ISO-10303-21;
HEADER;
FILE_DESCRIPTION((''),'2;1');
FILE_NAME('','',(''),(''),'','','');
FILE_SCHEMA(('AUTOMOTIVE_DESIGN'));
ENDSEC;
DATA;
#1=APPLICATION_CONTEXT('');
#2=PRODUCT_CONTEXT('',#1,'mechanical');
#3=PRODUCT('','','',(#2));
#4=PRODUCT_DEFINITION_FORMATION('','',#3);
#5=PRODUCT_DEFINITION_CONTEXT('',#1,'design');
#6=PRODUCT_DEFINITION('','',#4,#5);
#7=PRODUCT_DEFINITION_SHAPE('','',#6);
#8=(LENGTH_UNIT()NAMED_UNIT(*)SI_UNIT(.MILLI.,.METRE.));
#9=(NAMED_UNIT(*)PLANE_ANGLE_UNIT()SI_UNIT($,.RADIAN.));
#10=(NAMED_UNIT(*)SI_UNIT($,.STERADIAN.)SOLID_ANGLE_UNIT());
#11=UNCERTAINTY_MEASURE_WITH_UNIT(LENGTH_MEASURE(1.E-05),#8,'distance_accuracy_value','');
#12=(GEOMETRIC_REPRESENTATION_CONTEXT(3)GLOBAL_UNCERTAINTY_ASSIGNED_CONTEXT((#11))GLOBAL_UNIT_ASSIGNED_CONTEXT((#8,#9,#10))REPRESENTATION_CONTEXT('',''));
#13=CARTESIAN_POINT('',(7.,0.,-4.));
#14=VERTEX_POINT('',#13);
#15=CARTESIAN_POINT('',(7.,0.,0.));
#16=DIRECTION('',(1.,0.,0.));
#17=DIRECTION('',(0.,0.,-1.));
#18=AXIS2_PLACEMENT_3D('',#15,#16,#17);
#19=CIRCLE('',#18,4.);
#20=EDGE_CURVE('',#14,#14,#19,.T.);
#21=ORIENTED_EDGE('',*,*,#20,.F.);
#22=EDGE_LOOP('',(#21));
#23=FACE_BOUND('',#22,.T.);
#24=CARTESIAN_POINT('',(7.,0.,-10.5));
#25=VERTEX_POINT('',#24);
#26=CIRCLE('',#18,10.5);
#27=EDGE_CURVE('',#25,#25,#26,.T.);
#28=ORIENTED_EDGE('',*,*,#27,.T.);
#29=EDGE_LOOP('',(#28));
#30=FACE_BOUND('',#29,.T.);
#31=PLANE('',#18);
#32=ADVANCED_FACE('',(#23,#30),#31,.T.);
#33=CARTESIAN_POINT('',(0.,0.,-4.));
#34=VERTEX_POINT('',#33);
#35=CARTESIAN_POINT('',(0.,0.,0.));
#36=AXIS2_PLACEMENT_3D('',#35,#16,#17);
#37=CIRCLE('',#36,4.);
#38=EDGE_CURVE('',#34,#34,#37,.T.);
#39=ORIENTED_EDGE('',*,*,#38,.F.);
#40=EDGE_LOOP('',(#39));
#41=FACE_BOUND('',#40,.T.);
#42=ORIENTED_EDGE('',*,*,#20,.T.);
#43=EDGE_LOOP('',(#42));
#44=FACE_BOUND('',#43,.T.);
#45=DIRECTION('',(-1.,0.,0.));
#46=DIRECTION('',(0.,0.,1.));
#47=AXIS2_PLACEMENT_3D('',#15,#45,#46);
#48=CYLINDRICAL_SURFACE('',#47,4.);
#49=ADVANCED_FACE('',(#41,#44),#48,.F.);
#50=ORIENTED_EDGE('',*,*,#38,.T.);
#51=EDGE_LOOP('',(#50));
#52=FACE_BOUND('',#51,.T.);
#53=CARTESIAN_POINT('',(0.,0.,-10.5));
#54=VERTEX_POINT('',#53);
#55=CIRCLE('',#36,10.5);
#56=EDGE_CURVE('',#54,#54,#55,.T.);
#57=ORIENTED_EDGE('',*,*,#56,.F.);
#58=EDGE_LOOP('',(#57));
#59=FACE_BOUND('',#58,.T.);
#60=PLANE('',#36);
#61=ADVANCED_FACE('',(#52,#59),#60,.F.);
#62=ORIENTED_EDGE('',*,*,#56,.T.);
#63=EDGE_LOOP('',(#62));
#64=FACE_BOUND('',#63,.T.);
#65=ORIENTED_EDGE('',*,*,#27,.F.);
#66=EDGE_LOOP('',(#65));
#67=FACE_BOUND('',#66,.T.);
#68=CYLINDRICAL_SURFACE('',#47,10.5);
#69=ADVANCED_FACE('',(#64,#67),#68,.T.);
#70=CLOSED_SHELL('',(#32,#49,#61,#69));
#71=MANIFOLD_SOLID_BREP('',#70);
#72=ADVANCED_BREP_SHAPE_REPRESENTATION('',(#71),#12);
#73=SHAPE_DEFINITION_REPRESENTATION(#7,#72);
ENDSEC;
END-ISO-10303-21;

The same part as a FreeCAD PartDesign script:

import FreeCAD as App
import Part
import Sketcher
from FreeCAD import Vector

doc = App.newDocument("Part")
params = doc.addObject("Spreadsheet::Sheet", "Params")
for row, (alias, value) in enumerate([
    ("sketch1_diameter", "21 mm"),
    ("sketch1_diameter2", "8 mm"),
    ("pad1_length", "7 mm"),
], start=1):
    params.set(f"A{row}", alias)
    params.set(f"B{row}", "=" + value)
    params.setAlias(f"B{row}", alias)

body = doc.addObject("PartDesign::Body", "Body")

# Sketch on YZ plane
sketch1 = body.newObject("Sketcher::SketchObject", "Sketch")
sketch1.AttachmentSupport = (doc.getObject("YZ_Plane"), [""])
sketch1.MapMode = "FlatFace"
sketch1.addGeometry([
    Part.Circle(Vector(0, 0, 0), Vector(0, 0, 1), 10.5),
    Part.Circle(Vector(0, 0, 0), Vector(0, 0, 1), 4),
], False)
sketch1.addConstraint([
    Sketcher.Constraint("Coincident", 0, 3, -1, 1),
    Sketcher.Constraint("Coincident", 1, 3, -1, 1),
    Sketcher.Constraint("Diameter", 0, 21.0),
    Sketcher.Constraint("Diameter", 1, 8.0),
])
sketch1.setExpression("Constraints[2]", "Params.sketch1_diameter")
sketch1.setExpression("Constraints[3]", "Params.sketch1_diameter2")
pad1 = body.newObject("PartDesign::Pad", "Pad")
pad1.Profile = sketch1
pad1.setExpression("Length", "Params.pad1_length")

doc.recompute()
